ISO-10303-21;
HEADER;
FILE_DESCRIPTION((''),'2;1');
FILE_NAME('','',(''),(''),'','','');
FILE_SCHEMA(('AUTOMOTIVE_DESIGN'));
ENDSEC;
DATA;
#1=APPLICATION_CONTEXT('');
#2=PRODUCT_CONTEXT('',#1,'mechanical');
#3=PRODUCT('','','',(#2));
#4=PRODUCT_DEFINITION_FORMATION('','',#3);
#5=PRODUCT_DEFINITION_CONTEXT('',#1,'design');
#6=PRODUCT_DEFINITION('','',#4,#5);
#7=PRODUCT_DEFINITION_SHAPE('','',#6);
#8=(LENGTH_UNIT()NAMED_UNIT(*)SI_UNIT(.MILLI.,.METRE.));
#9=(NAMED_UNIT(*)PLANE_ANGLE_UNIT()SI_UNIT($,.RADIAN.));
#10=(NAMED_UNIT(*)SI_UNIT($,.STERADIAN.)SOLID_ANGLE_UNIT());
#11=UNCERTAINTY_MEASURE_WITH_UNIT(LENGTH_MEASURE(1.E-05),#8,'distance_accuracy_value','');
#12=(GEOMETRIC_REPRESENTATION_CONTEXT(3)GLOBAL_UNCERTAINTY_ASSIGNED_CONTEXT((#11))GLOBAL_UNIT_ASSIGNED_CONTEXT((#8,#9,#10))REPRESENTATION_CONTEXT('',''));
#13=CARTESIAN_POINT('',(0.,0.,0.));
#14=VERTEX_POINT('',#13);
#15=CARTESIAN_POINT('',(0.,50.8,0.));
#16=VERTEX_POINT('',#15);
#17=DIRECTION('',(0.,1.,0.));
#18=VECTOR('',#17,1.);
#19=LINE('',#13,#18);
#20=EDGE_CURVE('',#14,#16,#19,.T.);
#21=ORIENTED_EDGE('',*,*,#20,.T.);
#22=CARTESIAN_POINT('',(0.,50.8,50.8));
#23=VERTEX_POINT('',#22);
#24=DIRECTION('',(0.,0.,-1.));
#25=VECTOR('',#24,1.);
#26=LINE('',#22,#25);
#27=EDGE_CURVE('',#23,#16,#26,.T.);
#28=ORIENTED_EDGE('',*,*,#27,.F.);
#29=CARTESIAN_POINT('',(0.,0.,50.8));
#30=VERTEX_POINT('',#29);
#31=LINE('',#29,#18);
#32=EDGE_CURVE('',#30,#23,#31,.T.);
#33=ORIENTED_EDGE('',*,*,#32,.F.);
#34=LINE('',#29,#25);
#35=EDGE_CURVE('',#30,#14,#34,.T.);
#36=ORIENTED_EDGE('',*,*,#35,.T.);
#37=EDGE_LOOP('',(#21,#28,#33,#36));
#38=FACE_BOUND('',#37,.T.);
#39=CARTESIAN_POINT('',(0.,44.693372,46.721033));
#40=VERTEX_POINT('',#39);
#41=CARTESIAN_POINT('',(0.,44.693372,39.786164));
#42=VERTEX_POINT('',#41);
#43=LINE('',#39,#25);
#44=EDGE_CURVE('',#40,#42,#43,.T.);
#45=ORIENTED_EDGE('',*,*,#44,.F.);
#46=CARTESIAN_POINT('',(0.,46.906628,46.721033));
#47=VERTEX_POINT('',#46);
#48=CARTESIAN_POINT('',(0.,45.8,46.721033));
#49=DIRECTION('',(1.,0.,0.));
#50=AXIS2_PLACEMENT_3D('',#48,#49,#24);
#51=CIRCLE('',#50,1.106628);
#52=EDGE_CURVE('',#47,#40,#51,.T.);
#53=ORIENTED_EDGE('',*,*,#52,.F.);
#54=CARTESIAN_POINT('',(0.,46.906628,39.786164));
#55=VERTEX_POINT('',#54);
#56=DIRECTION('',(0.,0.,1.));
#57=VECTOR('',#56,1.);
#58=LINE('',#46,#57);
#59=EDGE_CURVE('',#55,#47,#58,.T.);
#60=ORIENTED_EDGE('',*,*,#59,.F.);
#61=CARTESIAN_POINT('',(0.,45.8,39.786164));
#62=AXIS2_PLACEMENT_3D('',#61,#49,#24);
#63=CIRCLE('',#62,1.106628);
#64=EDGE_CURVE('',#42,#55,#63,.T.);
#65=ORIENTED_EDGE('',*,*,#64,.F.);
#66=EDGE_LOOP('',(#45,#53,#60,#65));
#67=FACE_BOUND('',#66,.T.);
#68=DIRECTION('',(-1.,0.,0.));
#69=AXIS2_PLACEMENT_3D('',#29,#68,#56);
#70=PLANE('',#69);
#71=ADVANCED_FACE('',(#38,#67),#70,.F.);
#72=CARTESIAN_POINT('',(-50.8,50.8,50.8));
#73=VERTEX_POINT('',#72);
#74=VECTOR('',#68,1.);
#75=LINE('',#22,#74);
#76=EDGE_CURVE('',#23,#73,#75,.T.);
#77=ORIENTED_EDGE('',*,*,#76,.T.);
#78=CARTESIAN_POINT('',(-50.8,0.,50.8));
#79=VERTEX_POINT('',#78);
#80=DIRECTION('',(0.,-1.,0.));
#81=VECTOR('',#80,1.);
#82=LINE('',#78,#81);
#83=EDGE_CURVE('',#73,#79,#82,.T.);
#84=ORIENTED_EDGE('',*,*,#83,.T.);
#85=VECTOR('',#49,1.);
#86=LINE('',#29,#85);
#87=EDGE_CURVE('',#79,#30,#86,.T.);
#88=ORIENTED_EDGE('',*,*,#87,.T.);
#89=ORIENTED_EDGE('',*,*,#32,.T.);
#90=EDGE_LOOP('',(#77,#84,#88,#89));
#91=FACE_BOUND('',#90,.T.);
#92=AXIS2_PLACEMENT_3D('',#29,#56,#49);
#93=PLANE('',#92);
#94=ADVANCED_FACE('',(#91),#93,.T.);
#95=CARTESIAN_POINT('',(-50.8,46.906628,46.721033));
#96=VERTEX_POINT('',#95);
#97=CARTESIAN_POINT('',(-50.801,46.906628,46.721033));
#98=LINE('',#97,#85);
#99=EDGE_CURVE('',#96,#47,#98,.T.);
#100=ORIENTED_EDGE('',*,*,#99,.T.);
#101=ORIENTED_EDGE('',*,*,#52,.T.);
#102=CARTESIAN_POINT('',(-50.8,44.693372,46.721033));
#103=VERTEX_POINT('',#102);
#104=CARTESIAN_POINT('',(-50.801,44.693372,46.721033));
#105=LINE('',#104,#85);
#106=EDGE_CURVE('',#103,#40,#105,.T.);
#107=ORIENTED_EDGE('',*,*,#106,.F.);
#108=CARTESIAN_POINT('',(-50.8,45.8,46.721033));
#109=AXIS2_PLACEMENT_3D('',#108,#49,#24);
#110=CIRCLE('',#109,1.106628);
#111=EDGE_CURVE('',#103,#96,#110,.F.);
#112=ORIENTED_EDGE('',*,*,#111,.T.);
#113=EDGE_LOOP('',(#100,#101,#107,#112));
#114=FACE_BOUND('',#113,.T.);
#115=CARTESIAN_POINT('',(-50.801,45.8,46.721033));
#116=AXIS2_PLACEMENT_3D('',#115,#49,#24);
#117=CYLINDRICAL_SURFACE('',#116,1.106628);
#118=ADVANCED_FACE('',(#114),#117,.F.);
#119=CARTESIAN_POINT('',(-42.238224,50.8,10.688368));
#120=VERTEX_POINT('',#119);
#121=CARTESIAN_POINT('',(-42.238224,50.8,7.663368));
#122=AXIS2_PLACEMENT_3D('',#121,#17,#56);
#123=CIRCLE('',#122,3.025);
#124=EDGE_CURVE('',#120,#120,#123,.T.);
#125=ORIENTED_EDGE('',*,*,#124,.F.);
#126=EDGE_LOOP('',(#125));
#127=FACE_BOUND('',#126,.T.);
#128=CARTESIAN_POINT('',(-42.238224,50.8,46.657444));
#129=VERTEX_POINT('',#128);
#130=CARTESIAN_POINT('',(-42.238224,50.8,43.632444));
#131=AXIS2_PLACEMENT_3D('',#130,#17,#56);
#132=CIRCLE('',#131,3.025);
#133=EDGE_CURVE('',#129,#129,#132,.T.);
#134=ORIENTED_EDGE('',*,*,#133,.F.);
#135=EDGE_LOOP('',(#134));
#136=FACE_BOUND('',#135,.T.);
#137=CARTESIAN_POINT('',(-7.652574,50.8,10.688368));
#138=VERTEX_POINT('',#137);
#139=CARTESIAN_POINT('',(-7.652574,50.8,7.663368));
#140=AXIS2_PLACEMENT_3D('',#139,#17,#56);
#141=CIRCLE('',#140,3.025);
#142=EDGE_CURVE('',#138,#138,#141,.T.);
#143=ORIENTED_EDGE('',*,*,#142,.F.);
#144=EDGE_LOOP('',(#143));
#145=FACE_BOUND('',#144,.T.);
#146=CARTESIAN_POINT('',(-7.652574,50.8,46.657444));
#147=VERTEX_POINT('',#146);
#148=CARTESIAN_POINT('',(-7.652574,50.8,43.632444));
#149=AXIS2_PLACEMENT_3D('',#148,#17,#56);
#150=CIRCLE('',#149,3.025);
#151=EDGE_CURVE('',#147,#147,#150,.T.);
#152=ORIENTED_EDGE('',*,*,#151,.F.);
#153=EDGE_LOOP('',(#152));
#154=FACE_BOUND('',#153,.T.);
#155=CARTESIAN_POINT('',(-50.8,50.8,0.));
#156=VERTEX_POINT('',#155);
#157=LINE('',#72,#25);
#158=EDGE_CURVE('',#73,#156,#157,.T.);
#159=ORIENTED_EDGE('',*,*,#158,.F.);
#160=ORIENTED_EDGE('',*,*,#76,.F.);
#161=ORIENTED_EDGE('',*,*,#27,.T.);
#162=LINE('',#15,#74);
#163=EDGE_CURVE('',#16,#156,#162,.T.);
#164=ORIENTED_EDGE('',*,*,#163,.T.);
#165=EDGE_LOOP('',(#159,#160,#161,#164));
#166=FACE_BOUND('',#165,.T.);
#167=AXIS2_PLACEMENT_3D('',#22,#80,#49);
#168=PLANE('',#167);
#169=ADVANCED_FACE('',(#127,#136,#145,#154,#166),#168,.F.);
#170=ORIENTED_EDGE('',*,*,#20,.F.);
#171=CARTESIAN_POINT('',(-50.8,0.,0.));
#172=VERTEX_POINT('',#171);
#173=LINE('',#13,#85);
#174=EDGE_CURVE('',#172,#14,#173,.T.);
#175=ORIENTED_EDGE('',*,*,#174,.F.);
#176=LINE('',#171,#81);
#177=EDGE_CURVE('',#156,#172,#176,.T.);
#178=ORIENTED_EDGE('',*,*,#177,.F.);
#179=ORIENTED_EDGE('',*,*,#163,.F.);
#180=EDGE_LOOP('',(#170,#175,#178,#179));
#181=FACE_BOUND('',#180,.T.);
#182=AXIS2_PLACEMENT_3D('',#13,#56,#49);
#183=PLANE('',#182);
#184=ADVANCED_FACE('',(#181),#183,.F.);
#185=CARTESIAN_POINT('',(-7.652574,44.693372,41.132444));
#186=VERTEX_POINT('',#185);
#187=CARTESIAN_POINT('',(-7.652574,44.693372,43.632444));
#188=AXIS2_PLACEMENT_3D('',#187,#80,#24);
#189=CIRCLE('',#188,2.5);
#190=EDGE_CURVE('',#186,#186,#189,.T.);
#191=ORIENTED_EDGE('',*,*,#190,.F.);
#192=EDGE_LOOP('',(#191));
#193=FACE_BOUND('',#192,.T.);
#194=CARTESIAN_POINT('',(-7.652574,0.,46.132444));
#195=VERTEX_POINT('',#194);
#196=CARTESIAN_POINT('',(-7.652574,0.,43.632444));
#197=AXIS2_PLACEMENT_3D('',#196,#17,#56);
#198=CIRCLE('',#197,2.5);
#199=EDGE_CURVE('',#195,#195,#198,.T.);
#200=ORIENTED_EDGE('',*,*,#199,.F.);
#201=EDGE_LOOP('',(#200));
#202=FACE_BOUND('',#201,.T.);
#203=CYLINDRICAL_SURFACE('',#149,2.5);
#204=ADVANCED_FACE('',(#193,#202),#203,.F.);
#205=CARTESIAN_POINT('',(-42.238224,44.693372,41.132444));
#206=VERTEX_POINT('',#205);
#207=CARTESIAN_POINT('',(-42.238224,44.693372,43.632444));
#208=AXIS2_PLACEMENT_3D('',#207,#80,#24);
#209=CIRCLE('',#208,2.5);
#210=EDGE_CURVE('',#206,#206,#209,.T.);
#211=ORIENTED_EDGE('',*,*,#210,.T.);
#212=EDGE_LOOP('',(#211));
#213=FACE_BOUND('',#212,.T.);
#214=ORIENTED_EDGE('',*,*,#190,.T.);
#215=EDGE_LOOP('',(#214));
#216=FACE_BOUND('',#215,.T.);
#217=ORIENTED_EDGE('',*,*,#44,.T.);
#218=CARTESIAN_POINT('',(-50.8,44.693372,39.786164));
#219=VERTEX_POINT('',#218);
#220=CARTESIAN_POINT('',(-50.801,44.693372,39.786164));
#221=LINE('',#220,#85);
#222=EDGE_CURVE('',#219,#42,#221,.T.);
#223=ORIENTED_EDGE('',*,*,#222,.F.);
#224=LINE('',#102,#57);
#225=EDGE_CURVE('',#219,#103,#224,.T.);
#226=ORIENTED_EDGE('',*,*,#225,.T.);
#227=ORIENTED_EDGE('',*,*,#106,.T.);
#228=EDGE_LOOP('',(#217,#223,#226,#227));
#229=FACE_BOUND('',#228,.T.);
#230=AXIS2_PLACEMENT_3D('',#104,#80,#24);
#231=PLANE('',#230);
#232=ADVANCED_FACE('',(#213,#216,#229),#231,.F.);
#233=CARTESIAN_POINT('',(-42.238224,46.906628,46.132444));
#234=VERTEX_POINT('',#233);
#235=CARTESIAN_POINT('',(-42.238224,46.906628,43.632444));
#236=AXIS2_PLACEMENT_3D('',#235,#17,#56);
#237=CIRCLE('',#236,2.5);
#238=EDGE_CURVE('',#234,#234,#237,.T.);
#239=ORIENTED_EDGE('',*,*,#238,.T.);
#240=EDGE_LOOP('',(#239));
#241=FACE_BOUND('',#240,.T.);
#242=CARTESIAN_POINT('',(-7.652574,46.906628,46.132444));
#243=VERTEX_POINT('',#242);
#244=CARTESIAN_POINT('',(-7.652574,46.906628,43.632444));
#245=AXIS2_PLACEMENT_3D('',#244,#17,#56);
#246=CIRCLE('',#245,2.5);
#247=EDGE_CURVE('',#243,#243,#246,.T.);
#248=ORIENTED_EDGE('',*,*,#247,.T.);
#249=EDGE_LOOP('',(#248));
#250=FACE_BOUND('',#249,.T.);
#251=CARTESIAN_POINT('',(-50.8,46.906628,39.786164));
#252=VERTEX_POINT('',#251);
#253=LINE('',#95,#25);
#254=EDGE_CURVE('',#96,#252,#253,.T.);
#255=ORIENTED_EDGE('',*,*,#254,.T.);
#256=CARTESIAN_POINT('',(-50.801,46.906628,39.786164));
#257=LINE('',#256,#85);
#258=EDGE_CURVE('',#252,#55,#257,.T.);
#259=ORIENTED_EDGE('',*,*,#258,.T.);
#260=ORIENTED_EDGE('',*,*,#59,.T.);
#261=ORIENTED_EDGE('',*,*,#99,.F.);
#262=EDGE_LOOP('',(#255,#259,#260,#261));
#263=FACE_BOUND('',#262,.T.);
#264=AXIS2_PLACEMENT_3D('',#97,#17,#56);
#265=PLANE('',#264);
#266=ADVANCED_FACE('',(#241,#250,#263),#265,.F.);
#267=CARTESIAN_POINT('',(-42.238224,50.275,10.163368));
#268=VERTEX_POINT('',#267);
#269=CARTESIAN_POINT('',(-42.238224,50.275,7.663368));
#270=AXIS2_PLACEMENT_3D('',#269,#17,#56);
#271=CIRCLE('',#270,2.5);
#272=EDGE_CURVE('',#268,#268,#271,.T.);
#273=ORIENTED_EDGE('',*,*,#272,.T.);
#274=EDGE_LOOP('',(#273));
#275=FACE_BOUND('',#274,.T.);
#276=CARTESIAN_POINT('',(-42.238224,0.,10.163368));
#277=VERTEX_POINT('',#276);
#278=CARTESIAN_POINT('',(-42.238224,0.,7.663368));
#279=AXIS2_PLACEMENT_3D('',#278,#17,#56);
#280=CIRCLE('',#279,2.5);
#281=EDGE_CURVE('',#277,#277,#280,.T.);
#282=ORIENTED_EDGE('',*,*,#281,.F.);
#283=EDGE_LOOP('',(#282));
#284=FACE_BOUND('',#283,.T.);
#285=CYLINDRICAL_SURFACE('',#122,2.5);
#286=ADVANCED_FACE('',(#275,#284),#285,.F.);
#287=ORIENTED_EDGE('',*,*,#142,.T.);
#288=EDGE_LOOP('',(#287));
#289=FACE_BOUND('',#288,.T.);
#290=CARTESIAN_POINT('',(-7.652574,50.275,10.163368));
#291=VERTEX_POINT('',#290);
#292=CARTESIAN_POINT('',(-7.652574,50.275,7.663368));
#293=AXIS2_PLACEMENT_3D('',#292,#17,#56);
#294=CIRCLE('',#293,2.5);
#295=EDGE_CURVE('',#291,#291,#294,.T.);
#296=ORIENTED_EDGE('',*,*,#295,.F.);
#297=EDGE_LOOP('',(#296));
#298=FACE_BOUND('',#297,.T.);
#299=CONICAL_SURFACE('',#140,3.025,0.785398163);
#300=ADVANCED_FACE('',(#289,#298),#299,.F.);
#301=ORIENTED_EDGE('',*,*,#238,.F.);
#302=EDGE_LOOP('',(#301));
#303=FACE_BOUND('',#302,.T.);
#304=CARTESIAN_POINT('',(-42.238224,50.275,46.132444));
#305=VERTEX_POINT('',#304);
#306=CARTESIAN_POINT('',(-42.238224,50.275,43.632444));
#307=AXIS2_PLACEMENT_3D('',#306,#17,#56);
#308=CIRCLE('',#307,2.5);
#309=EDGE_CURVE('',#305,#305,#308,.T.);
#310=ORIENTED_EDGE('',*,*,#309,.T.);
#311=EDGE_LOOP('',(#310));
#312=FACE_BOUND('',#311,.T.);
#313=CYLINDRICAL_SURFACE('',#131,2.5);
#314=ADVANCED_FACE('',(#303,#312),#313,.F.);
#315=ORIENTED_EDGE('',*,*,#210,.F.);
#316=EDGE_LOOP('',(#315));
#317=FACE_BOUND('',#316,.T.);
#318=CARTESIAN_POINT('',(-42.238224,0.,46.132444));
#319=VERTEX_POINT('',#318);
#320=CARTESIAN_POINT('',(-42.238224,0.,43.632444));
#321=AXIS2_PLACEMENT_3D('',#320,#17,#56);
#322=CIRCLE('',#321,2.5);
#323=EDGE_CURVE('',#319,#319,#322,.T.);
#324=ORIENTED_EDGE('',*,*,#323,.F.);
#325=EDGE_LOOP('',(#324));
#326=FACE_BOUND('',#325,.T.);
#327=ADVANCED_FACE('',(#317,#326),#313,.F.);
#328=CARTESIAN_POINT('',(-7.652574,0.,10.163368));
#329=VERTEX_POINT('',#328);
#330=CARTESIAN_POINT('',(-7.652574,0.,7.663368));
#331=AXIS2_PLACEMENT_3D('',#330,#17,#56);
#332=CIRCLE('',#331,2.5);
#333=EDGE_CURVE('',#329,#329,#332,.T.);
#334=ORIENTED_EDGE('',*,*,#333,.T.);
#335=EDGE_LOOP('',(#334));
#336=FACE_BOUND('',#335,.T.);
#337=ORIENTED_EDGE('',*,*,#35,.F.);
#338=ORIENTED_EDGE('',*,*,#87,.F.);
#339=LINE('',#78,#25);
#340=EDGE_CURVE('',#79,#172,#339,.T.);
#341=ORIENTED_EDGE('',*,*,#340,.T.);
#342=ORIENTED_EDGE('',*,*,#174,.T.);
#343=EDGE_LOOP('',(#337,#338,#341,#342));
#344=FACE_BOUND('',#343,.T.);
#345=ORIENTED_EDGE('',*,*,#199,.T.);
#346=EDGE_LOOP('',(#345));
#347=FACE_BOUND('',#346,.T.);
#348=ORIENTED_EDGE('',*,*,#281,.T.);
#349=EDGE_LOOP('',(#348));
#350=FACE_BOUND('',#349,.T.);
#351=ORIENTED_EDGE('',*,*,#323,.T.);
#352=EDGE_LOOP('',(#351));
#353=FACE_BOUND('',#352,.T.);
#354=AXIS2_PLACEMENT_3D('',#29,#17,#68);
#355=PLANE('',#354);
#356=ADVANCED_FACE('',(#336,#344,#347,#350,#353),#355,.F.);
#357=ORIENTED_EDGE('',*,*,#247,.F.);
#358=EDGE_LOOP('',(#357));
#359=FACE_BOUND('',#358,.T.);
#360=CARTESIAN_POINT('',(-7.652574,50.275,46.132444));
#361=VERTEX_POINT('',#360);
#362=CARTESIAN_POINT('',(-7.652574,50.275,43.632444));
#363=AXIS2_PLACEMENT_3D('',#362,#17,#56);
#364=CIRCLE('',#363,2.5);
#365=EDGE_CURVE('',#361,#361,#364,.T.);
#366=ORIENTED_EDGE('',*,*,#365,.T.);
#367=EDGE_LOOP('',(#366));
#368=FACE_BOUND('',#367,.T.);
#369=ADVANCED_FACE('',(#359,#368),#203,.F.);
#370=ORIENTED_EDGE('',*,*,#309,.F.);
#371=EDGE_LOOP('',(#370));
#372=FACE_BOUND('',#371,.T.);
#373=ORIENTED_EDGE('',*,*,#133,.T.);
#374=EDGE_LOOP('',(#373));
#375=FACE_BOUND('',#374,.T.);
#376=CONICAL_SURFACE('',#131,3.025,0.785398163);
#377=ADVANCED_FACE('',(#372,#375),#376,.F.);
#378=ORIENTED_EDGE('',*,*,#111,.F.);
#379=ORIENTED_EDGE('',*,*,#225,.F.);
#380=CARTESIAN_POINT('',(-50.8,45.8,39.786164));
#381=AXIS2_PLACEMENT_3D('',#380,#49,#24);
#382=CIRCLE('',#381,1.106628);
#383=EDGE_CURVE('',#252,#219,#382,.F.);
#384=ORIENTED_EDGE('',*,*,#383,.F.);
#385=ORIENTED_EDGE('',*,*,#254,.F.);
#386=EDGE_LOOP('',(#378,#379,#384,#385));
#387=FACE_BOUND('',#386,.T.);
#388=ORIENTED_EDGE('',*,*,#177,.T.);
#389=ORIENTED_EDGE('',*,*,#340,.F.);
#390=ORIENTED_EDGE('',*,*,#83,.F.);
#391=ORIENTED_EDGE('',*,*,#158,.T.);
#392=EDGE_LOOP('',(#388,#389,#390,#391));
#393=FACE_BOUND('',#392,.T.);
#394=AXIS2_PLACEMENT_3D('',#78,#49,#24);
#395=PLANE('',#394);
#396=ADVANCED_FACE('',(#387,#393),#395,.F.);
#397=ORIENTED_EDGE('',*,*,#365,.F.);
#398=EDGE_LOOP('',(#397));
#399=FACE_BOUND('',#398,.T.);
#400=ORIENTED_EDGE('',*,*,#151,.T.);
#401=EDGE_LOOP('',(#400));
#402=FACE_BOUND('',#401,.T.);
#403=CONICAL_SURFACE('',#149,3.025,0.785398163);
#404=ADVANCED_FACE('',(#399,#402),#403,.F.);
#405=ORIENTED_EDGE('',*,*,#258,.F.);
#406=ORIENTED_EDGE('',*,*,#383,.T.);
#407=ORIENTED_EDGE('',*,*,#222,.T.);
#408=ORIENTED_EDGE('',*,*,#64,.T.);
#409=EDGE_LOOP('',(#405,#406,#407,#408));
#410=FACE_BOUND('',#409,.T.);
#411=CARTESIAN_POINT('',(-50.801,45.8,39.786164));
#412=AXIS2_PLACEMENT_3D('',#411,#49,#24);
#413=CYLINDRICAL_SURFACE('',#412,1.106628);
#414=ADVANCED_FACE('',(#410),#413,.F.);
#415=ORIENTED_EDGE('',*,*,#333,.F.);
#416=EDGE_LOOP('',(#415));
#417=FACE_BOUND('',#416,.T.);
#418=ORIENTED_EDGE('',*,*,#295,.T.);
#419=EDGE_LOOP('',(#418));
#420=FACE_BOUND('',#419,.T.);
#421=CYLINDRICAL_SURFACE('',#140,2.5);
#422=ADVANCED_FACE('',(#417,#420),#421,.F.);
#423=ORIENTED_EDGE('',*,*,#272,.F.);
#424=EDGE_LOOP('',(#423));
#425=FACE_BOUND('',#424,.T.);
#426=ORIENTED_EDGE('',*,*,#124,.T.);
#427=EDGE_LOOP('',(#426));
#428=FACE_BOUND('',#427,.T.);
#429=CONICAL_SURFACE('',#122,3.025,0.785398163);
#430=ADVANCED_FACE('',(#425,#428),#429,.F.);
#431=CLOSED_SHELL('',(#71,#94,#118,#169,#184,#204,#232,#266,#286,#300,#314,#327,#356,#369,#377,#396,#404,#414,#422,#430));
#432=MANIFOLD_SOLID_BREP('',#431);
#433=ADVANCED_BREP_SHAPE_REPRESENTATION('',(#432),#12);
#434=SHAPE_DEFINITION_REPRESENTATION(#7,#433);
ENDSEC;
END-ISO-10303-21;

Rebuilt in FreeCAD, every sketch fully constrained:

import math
import FreeCAD as App
import Part
import Sketcher
Q = App.Units.Quantity


def add_polygon(sketch, points):
    """Adds a closed chain of lines whose ends are joined by coincident constraints."""
    first, n = sketch.GeometryCount, len(points)
    for a, b in zip(points, points[1:] + points[:1]):
        sketch.addGeometry(Part.LineSegment(App.Vector(*a, 0), App.Vector(*b, 0)), False)
    for i in range(n):
        sketch.addConstraint(Sketcher.Constraint("Coincident", first + i, 2, first + (i + 1) % n, 1))

doc = App.newDocument("Part")
body = doc.addObject("PartDesign::Body", "Body")

# Sketch on XY plane
sketch1 = body.newObject("Sketcher::SketchObject", "Sketch")
sketch1.AttachmentSupport = (doc.getObject("XY_Plane"), [""])
sketch1.MapMode = "FlatFace"
add_polygon(sketch1, [(-51, 51), (-51, 0), (0, 0), (0, 51)])  # lines 0-3
sketch1.addConstraint(Sketcher.Constraint("Vertical", 0))
sketch1.addConstraint(Sketcher.Constraint("Horizontal", 1))
sketch1.addConstraint(Sketcher.Constraint("Vertical", 2))
sketch1.addConstraint(Sketcher.Constraint("Horizontal", 3))
sketch1.addConstraint(Sketcher.Constraint("Coincident", 1, 2, -1, 1))
sketch1.addConstraint(Sketcher.Constraint("Equal", 3, 0))
sketch1.addConstraint(Sketcher.Constraint("DistanceX", 1, 1, 1, 2, Q("50.8 mm")))
pad1 = body.newObject("PartDesign::Pad", "Pad")
pad1.Profile = sketch1
pad1.Length = 50.8

# Sketch on XZ plane
sketch2 = body.newObject("Sketcher::SketchObject", "Sketch001")
sketch2.AttachmentSupport = (doc.getObject("XZ_Plane"), [""])
sketch2.MapMode = "FlatFace"
sketch2.AttachmentOffset = App.Placement(App.Vector(0, 0, -50.8), App.Rotation())
sketch2.addGeometry(Part.Circle(App.Vector(-42.2, 7.7, 0), App.Vector(0, 0, 1), 2.5), False)
sketch2.addGeometry(Part.Circle(App.Vector(-7.7, 7.7, 0), App.Vector(0, 0, 1), 2.5), False)
sketch2.addGeometry(Part.Circle(App.Vector(-7.7, 43.6, 0), App.Vector(0, 0, 1), 2.5), False)
sketch2.addGeometry(Part.Circle(App.Vector(-42.2, 43.6, 0), App.Vector(0, 0, 1), 2.5), False)
sketch2.addConstraint(Sketcher.Constraint("Equal", 0, 1))
sketch2.addConstraint(Sketcher.Constraint("Equal", 1, 2))
sketch2.addConstraint(Sketcher.Constraint("Equal", 2, 3))
sketch2.addConstraint(Sketcher.Constraint("Horizontal", 0, 3, 1, 3))
sketch2.addConstraint(Sketcher.Constraint("Horizontal", 2, 3, 3, 3))
sketch2.addConstraint(Sketcher.Constraint("Vertical", 1, 3, 2, 3))
sketch2.addConstraint(Sketcher.Constraint("Vertical", 0, 3, 3, 3))
sketch2.addConstraint(Sketcher.Constraint("Diameter", 0, Q("5 mm")))
sketch2.addConstraint(Sketcher.Constraint("DistanceY", -1, 1, 0, 3, Q("7.663368 mm")))
sketch2.addConstraint(Sketcher.Constraint("DistanceX", 0, 3, 1, 3, Q("34.58565 mm")))
sketch2.addConstraint(Sketcher.Constraint("DistanceX", 0, 3, -1, 1, Q("42.238224 mm")))
sketch2.addConstraint(Sketcher.Constraint("DistanceY", -1, 1, 2, 3, Q("43.632444 mm")))
doc.recompute()
hole = body.newObject("PartDesign::Hole", "Hole")
hole.Profile = sketch2
hole.ThreadType = "None"
hole.Diameter = 5
hole.DepthType = "ThroughAll"
hole.HoleCutType = "Countersink"
hole.HoleCutDiameter = 6.05
hole.HoleCutCountersinkAngle = 90
hole.Reversed = True

# Sketch on YZ plane
sketch3 = body.newObject("Sketcher::SketchObject", "Sketch002")
sketch3.AttachmentSupport = (doc.getObject("YZ_Plane"), [""])
sketch3.MapMode = "FlatFace"
sketch3.addGeometry(Part.LineSegment(App.Vector(46.9, 39.8, 0), App.Vector(46.9, 46.7, 0)), False)
sketch3.addGeometry(Part.ArcOfCircle(Part.Circle(App.Vector(45.8, 46.7, 0), App.Vector(0, 0, 1), 1.1), math.radians(0), math.radians(180)), False)
sketch3.addGeometry(Part.LineSegment(App.Vector(44.7, 46.7, 0), App.Vector(44.7, 39.8, 0)), False)
sketch3.addGeometry(Part.ArcOfCircle(Part.Circle(App.Vector(45.8, 39.8, 0), App.Vector(0, 0, 1), 1.1), math.radians(180), math.radians(360)), False)
sketch3.addConstraint(Sketcher.Constraint("Tangent", 0, 2, 1, 1))
sketch3.addConstraint(Sketcher.Constraint("Tangent", 1, 2, 2, 1))
sketch3.addConstraint(Sketcher.Constraint("Tangent", 2, 2, 3, 1))
sketch3.addConstraint(Sketcher.Constraint("Tangent", 3, 2, 0, 1))
sketch3.addConstraint(Sketcher.Constraint("Vertical", 0))
sketch3.addConstraint(Sketcher.Constraint("Vertical", 2))
sketch3.addConstraint(Sketcher.Constraint("DistanceX", -1, 1, 1, 3, Q("45.8 mm")))
sketch3.addConstraint(Sketcher.Constraint("Radius", 1, Q("1.106628 mm")))
sketch3.addConstraint(Sketcher.Constraint("DistanceY", 0, 1, 0, 2, Q("6.934869 mm")))
sketch3.addConstraint(Sketcher.Constraint("DistanceY", -1, 1, 1, 3, Q("46.721033 mm")))
pocket1 = body.newObject("PartDesign::Pocket", "Pocket")
pocket1.Profile = sketch3
pocket1.Type = "UpToFirst"

doc.recompute()
